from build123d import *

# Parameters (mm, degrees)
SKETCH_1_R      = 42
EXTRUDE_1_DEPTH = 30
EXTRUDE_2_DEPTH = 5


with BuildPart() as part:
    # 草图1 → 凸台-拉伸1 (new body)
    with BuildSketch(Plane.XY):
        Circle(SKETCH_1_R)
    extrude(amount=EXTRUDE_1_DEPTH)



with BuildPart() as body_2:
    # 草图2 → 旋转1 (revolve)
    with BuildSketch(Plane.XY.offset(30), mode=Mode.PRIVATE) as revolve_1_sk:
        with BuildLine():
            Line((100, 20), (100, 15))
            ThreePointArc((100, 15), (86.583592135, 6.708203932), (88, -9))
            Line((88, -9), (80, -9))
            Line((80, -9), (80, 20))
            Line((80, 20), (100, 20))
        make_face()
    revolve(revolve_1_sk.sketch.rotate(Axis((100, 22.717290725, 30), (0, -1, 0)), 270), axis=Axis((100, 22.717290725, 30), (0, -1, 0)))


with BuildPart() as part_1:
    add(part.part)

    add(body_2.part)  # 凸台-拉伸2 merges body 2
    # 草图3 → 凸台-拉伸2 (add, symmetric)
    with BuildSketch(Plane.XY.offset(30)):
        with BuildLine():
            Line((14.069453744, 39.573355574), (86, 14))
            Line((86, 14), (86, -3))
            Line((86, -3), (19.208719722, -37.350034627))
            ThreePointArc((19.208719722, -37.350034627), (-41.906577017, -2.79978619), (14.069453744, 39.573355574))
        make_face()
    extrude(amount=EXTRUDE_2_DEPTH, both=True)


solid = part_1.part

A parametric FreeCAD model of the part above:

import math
import FreeCAD as App
import Part
import Sketcher
from FreeCAD import Vector
Q = App.Units.Quantity

doc = App.newDocument("Part")
body = doc.addObject("PartDesign::Body", "Body")

sketch1 = doc.addObject("Sketcher::SketchObject", "Sketch")
body.addObject(sketch1)
sketch1.AttachmentSupport = (doc.XY_Plane, [""])
sketch1.MapMode = "FlatFace"
sketch1.addGeometry(Part.Circle(Vector(0, 0, 0), Vector(0, 0, 1), 42), False)
sketch1.addConstraint([
    Sketcher.Constraint("Coincident", 0, 3, -1, 1),
    Sketcher.Constraint("Diameter", 0, Q("84 mm")),
])
pad1 = doc.addObject("PartDesign::Pad", "Pad")
body.addObject(pad1)
pad1.Profile = sketch1
pad1.Length = 30
body2 = doc.addObject("PartDesign::Body", "Body001")

sketch2 = doc.addObject("Sketcher::SketchObject", "Sketch001")
body2.addObject(sketch2)
sketch2.AttachmentSupport = (doc.getObject("XY_Plane001"), [""])
sketch2.MapMode = "FlatFace"
sketch2.AttachmentOffset = App.Placement(Vector(0, 0, 30), App.Rotation())
sketch2.addGeometry([
    Part.LineSegment(Vector(100, 15, 0), Vector(100, 20, 0)),
    Part.LineSegment(Vector(100, 20, 0), Vector(80, 20, 0)),
    Part.LineSegment(Vector(80, 20, 0), Vector(80, -9, 0)),
    Part.LineSegment(Vector(80, -9, 0), Vector(88, -9, 0)),
    Part.ArcOfCircle(Part.Circle(Vector(100, 0, 0), Vector(0, 0, 1), 15), math.radians(90), math.radians(217)),
], False)
sketch2.addGeometry(Part.LineSegment(Vector(100, 20, 0), Vector(100, -9, 0)), True)
sketch2.addConstraint([
    Sketcher.Constraint("Coincident", 0, 2, 1, 1),
    Sketcher.Constraint("Coincident", 1, 2, 2, 1),
    Sketcher.Constraint("Coincident", 2, 2, 3, 1),
    Sketcher.Constraint("Coincident", 3, 2, 4, 2),
    Sketcher.Constraint("Coincident", 4, 1, 0, 1),
    Sketcher.Constraint("Vertical", 0),
    Sketcher.Constraint("Horizontal", 1),
    Sketcher.Constraint("Vertical", 2),
    Sketcher.Constraint("Horizontal", 3),
    Sketcher.Constraint("Vertical", 5),
    Sketcher.Constraint("Coincident", 5, 1, 0, 2),
    Sketcher.Constraint("PointOnObject", 4, 3, -1),
    Sketcher.Constraint("Horizontal", 3, 2, 5, 2),
    Sketcher.Constraint("Vertical", 4, 3, 0, 2),
    Sketcher.Constraint("Radius", 4, Q("15 mm")),
    Sketcher.Constraint("DistanceX", 1, 2, 1, 1, Q("20 mm")),
    Sketcher.Constraint("DistanceX", 3, 1, 3, 2, Q("8 mm")),
    Sketcher.Constraint("DistanceY", 0, 1, 0, 2, Q("5 mm")),
    Sketcher.Constraint("DistanceX", -1, 1, 4, 3, Q("100 mm")),
])
revolution = doc.addObject("PartDesign::Revolution", "Revolution")
body2.addObject(revolution)
revolution.Profile = sketch2
revolution.ReferenceAxis = (sketch2, ["Axis0"])
revolution.Angle = 360
body.AllowCompound = True
doc.recompute()

boolean = doc.addObject("PartDesign::Boolean", "Boolean")
body.addObject(boolean)
boolean.Type = "Fuse"
boolean.addObjects([body2])

sketch3 = doc.addObject("Sketcher::SketchObject", "Sketch002")
body.addObject(sketch3)
sketch3.AttachmentSupport = (doc.XY_Plane, [""])
sketch3.MapMode = "FlatFace"
sketch3.AttachmentOffset = App.Placement(Vector(0, 0, 30), App.Rotation())
sketch3.addGeometry([
    Part.LineSegment(Vector(86, 14, 0), Vector(14, 40, 0)),
    Part.ArcOfCircle(Part.Circle(Vector(0, 0, 0), Vector(0, 0, 1), 42), math.radians(70), math.radians(297)),
    Part.LineSegment(Vector(19, -37, 0), Vector(86, -3, 0)),
    Part.LineSegment(Vector(86, -3, 0), Vector(86, 14, 0)),
], False)
sketch3.addConstraint([
    Sketcher.Constraint("Tangent", 0, 2, 1, 1),
    Sketcher.Constraint("Tangent", 1, 2, 2, 1),
    Sketcher.Constraint("Coincident", 2, 2, 3, 1),
    Sketcher.Constraint("Coincident", 3, 2, 0, 1),
    Sketcher.Constraint("Vertical", 3),
    Sketcher.Constraint("Coincident", 1, 3, -1, 1),
    Sketcher.Constraint("Radius", 1, Q("42 mm")),
    Sketcher.Constraint("DistanceY", 3, 1, 3, 2, Q("17 mm")),
    Sketcher.Constraint("DistanceX", -1, 1, 2, 2, Q("86 mm")),
    Sketcher.Constraint("DistanceY", 2, 2, -1, 1, Q("3 mm")),
])
pad2 = doc.addObject("PartDesign::Pad", "Pad001")
body.addObject(pad2)
pad2.Profile = sketch3
pad2.Length = 10
pad2.Midplane = True

doc.recompute()
